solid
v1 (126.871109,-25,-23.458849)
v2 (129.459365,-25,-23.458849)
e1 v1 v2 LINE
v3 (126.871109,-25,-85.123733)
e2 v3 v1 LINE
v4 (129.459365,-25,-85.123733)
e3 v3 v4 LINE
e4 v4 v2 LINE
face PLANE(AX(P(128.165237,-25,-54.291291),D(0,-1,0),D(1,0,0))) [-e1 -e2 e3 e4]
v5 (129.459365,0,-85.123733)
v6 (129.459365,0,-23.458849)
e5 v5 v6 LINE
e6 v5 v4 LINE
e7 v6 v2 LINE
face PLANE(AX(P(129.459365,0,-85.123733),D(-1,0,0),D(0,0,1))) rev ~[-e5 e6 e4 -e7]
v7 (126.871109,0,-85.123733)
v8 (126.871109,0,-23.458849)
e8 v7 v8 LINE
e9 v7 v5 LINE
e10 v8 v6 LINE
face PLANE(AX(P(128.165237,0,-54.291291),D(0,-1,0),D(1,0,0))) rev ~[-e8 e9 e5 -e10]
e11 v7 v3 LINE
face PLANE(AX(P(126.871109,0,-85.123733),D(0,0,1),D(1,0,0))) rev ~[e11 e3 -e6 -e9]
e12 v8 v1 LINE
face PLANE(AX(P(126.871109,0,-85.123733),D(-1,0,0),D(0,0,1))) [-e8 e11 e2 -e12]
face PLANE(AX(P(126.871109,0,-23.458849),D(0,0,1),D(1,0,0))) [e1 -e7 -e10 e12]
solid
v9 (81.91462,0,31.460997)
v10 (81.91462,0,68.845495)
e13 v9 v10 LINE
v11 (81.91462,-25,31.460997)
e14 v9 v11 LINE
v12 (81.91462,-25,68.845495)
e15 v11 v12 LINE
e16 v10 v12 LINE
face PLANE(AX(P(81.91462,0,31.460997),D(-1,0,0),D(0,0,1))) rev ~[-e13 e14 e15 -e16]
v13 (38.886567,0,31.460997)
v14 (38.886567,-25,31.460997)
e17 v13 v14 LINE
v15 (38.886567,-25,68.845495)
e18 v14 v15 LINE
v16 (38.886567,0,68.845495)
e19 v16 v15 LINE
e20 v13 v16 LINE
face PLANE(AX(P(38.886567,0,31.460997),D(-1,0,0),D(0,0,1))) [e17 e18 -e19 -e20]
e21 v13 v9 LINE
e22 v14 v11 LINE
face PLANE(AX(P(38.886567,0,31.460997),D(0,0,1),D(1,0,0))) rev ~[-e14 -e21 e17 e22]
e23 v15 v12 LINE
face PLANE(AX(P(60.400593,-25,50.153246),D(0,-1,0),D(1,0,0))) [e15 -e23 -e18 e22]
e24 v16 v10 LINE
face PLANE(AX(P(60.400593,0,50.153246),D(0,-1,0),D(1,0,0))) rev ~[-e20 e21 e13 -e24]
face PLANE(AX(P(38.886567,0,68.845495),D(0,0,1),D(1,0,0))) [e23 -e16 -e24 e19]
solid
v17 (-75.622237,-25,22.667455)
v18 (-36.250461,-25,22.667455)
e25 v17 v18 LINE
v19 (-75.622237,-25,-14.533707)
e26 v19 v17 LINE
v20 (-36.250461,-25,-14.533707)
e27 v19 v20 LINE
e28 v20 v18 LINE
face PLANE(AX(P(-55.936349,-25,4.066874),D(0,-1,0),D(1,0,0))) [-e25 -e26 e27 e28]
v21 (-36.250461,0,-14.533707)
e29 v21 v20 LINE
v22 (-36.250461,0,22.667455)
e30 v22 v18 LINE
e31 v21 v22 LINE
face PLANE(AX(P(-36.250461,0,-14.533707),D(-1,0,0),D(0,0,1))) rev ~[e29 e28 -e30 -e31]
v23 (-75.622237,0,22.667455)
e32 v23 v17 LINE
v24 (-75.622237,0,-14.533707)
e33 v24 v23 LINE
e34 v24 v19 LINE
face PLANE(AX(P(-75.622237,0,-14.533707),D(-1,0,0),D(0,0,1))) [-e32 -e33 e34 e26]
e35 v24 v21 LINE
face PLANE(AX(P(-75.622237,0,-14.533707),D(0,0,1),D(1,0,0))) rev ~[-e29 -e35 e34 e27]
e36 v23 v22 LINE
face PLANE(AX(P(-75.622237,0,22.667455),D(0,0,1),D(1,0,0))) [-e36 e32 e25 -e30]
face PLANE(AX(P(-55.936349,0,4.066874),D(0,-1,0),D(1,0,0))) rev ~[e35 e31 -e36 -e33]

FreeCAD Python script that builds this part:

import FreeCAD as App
import Part
import Sketcher
from FreeCAD import Vector

doc = App.newDocument("Part")
body = doc.addObject("PartDesign::Body", "Body")

# Sketch on XZ plane
sketch1 = body.newObject("Sketcher::SketchObject", "Sketch")
sketch1.AttachmentSupport = (doc.getObject("XZ_Plane"), [""])
sketch1.MapMode = "FlatFace"
sketch1.addGeometry(Part.LineSegment(Vector(-76, 23, 0), Vector(-76, -15, 0)), False)
sketch1.addGeometry(Part.LineSegment(Vector(-76, -15, 0), Vector(-36, -15, 0)), False)
sketch1.addGeometry(Part.LineSegment(Vector(-36, -15, 0), Vector(-36, 23, 0)), False)
sketch1.addGeometry(Part.LineSegment(Vector(-36, 23, 0), Vector(-76, 23, 0)), False)
sketch1.addConstraint(Sketcher.Constraint("Coincident", 0, 2, 1, 1))
sketch1.addConstraint(Sketcher.Constraint("Coincident", 1, 2, 2, 1))
sketch1.addConstraint(Sketcher.Constraint("Coincident", 2, 2, 3, 1))
sketch1.addConstraint(Sketcher.Constraint("Coincident", 3, 2, 0, 1))
sketch1.addConstraint(Sketcher.Constraint("Vertical", 0))
sketch1.addConstraint(Sketcher.Constraint("Horizontal", 1))
sketch1.addConstraint(Sketcher.Constraint("Vertical", 2))
sketch1.addConstraint(Sketcher.Constraint("Horizontal", 3))
sketch1.addConstraint(Sketcher.Constraint("DistanceY", 0, 2, 0, 1, 37.201162))
sketch1.addConstraint(Sketcher.Constraint("DistanceX", 1, 1, 1, 2, 39.371777))
sketch1.addConstraint(Sketcher.Constraint("DistanceX", 1, 2, -1, 1, 36.250461))
sketch1.addConstraint(Sketcher.Constraint("DistanceY", 0, 2, -1, 1, 14.533707))
pad1 = body.newObject("PartDesign::Pad", "Pad")
pad1.Profile = sketch1
pad1.Length = 25
body2 = doc.addObject("PartDesign::Body", "Body001")
body2.AllowCompound = True

# Sketch on XZ plane
sketch2 = body2.newObject("Sketcher::SketchObject", "Sketch001")
sketch2.AttachmentSupport = (doc.getObject("XZ_Plane001"), [""])
sketch2.MapMode = "FlatFace"
sketch2.addGeometry(Part.LineSegment(Vector(126.9, -23.5, 0), Vector(126.9, -85.1, 0)), False)
sketch2.addGeometry(Part.LineSegment(Vector(126.9, -85.1, 0), Vector(129.5, -85.1, 0)), False)
sketch2.addGeometry(Part.LineSegment(Vector(129.5, -85.1, 0), Vector(129.5, -23.5, 0)), False)
sketch2.addGeometry(Part.LineSegment(Vector(129.5, -23.5, 0), Vector(126.9, -23.5, 0)), False)
sketch2.addGeometry(Part.LineSegment(Vector(38.9, 68.8, 0), Vector(38.9, 31.5, 0)), False)
sketch2.addGeometry(Part.LineSegment(Vector(38.9, 31.5, 0), Vector(81.9, 31.5, 0)), False)
sketch2.addGeometry(Part.LineSegment(Vector(81.9, 31.5, 0), Vector(81.9, 68.8, 0)), False)
sketch2.addGeometry(Part.LineSegment(Vector(81.9, 68.8, 0), Vector(38.9, 68.8, 0)), False)
sketch2.addConstraint(Sketcher.Constraint("Coincident", 0, 2, 1, 1))
sketch2.addConstraint(Sketcher.Constraint("Coincident", 1, 2, 2, 1))
sketch2.addConstraint(Sketcher.Constraint("Coincident", 2, 2, 3, 1))
sketch2.addConstraint(Sketcher.Constraint("Coincident", 3, 2, 0, 1))
sketch2.addConstraint(Sketcher.Constraint("Coincident", 4, 2, 5, 1))
sketch2.addConstraint(Sketcher.Constraint("Coincident", 5, 2, 6, 1))
sketch2.addConstraint(Sketcher.Constraint("Coincident", 6, 2, 7, 1))
sketch2.addConstraint(Sketcher.Constraint("Coincident", 7, 2, 4, 1))
sketch2.addConstraint(Sketcher.Constraint("Vertical", 0))
sketch2.addConstraint(Sketcher.Constraint("Horizontal", 1))
sketch2.addConstraint(Sketcher.Constraint("Vertical", 2))
sketch2.addConstraint(Sketcher.Constraint("Horizontal", 3))
sketch2.addConstraint(Sketcher.Constraint("Vertical", 4))
sketch2.addConstraint(Sketcher.Constraint("Horizontal", 5))
sketch2.addConstraint(Sketcher.Constraint("Vertical", 6))
sketch2.addConstraint(Sketcher.Constraint("Horizontal", 7))
sketch2.addConstraint(Sketcher.Constraint("DistanceY", 4, 2, 4, 1, 37.384499))
sketch2.addConstraint(Sketcher.Constraint("DistanceX", 4, 2, 2, 2, 90.572799))
sketch2.addConstraint(Sketcher.Constraint("DistanceX", 1, 1, 1, 2, 2.588257))
sketch2.addConstraint(Sketcher.Constraint("DistanceX", 5, 1, 5, 2, 43.028053))
sketch2.addConstraint(Sketcher.Constraint("DistanceY", 0, 2, 0, 1, 61.664883))
sketch2.addConstraint(Sketcher.Constraint("DistanceX", -1, 1, 0, 2, 126.871109))
sketch2.addConstraint(Sketcher.Constraint("DistanceY", 2, 2, -1, 1, 23.458849))
sketch2.addConstraint(Sketcher.Constraint("DistanceY", 0, 2, 4, 2, 116.584729))
pad2 = body2.newObject("PartDesign::Pad", "Pad001")
pad2.Profile = sketch2
pad2.Length = 25

doc.recompute()
